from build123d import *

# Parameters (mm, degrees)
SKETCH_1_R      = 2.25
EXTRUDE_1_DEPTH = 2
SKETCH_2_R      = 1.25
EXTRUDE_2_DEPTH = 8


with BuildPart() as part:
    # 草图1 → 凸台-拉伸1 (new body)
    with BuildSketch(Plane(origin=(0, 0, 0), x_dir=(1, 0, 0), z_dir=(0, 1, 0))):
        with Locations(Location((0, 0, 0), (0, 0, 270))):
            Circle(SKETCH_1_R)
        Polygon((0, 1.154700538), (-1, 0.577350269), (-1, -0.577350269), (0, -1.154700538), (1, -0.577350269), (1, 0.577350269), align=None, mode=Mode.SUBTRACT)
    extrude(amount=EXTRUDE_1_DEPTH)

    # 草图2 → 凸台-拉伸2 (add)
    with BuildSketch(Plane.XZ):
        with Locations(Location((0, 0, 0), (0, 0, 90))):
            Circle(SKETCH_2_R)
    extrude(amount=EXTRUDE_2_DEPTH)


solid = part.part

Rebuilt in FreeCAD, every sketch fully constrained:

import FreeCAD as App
import Part
import Sketcher
from FreeCAD import Vector
Q = App.Units.Quantity

doc = App.newDocument("Part")
body = doc.addObject("PartDesign::Body", "Body")

# Sketch on XZ plane
sketch1 = body.newObject("Sketcher::SketchObject", "Sketch")
sketch1.AttachmentSupport = (doc.getObject("XZ_Plane"), [""])
sketch1.MapMode = "FlatFace"
sketch1.addGeometry([
    Part.Circle(Vector(0, 0, 0), Vector(0, 0, 1), 2.25),  # 0
    Part.LineSegment(Vector(-1, -0.57735, 0), Vector(0, -1.154701, 0)),  # 1
    Part.LineSegment(Vector(0, -1.154701, 0), Vector(1, -0.57735, 0)),  # 2
    Part.LineSegment(Vector(1, -0.57735, 0), Vector(1, 0.57735, 0)),  # 3
    Part.LineSegment(Vector(1, 0.57735, 0), Vector(0, 1.154701, 0)),  # 4
    Part.LineSegment(Vector(0, 1.154701, 0), Vector(-1, 0.57735, 0)),  # 5
    Part.LineSegment(Vector(-1, 0.57735, 0), Vector(-1, -0.57735, 0)),  # 6
], False)
sketch1.addConstraint([
    Sketcher.Constraint("Coincident", 1, 2, 2, 1),
    Sketcher.Constraint("Coincident", 2, 2, 3, 1),
    Sketcher.Constraint("Coincident", 3, 2, 4, 1),
    Sketcher.Constraint("Coincident", 4, 2, 5, 1),
    Sketcher.Constraint("Coincident", 5, 2, 6, 1),
    Sketcher.Constraint("Coincident", 6, 2, 1, 1),
    Sketcher.Constraint("Vertical", 3),
    Sketcher.Constraint("Vertical", 6),
    Sketcher.Constraint("Coincident", 0, 3, -1, 1),
    Sketcher.Constraint("Symmetric", 1, 2, 4, 2, -1, 1),
    Sketcher.Constraint("Symmetric", 2, 2, 5, 2, -1, 1),
    Sketcher.Constraint("PointOnObject", 1, 2, -2),
    Sketcher.Constraint("Parallel", 1, 4),
    Sketcher.Constraint("Horizontal", 3, 2, 5, 2),
    Sketcher.Constraint("Diameter", 0, Q("4.5 mm")),
    Sketcher.Constraint("Angle", 1, Q("-30 deg")),
    Sketcher.Constraint("DistanceX", -1, 1, 2, 2, Q("1 mm")),
    Sketcher.Constraint("DistanceY", 3, 1, 3, 2, Q("1.154701 mm")),
])
pad1 = body.newObject("PartDesign::Pad", "Pad")
pad1.Profile = sketch1
pad1.Length = 2
pad1.Reversed = True

# Sketch on XZ plane
sketch2 = body.newObject("Sketcher::SketchObject", "Sketch001")
sketch2.AttachmentSupport = (doc.getObject("XZ_Plane"), [""])
sketch2.MapMode = "FlatFace"
sketch2.addGeometry(Part.Circle(Vector(0, 0, 0), Vector(0, 0, 1), 1.25), False)
sketch2.addConstraint([
    Sketcher.Constraint("Coincident", 0, 3, -1, 1),
    Sketcher.Constraint("Diameter", 0, Q("2.5 mm")),
])
pad2 = body.newObject("PartDesign::Pad", "Pad001")
pad2.Profile = sketch2
pad2.Length = 8

doc.recompute()
